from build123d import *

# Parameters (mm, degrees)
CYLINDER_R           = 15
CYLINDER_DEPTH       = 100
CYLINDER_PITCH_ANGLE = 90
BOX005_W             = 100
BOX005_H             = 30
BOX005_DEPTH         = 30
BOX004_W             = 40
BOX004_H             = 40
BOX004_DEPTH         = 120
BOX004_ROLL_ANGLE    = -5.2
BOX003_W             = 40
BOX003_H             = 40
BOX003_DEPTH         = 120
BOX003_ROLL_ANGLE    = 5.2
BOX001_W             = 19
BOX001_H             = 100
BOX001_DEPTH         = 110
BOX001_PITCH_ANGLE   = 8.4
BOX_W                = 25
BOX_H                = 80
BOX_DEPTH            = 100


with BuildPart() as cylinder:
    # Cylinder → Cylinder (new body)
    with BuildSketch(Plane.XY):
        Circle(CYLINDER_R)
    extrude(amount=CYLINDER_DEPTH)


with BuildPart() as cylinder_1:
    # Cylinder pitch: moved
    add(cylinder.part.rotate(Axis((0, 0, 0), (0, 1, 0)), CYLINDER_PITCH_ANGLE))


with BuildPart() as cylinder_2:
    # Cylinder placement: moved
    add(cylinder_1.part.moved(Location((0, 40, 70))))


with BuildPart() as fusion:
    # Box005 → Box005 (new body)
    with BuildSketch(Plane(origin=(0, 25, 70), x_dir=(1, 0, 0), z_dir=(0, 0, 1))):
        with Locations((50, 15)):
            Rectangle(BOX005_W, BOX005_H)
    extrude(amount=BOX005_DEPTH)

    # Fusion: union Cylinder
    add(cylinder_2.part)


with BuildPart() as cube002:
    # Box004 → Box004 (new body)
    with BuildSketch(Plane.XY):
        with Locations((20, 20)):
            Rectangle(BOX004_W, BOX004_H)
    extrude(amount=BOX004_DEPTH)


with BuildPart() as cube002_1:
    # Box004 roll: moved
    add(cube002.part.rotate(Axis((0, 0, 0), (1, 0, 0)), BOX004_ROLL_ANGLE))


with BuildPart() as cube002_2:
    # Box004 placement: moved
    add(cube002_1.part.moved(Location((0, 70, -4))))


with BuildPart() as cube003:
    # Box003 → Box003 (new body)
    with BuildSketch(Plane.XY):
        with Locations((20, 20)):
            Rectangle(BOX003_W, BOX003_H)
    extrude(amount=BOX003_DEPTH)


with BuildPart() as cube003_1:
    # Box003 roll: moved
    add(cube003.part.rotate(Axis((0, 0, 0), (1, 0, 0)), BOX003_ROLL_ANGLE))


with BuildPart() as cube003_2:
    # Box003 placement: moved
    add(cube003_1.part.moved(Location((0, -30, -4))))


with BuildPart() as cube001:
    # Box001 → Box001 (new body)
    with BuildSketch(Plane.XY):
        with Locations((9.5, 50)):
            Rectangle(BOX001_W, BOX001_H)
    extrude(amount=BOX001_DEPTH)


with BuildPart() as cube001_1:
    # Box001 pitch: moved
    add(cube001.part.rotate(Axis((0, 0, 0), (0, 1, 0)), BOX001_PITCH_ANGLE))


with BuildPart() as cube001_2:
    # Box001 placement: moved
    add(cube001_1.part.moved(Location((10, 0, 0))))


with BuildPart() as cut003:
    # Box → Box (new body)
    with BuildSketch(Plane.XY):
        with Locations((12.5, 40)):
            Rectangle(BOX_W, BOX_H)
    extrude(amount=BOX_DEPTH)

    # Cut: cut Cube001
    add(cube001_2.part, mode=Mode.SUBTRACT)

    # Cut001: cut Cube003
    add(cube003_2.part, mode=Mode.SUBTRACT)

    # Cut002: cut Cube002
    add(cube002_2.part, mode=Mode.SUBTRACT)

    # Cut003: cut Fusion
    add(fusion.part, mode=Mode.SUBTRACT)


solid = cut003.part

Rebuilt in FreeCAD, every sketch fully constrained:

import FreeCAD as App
import Part
import Sketcher
from FreeCAD import Vector
Q = App.Units.Quantity


def add_polygon(sketch, points):
    """Adds a closed chain of lines whose ends are joined by coincident constraints."""
    first, n = sketch.GeometryCount, len(points)
    for a, b in zip(points, points[1:] + points[:1]):
        sketch.addGeometry(Part.LineSegment(App.Vector(*a, 0), App.Vector(*b, 0)), False)
    for i in range(n):
        sketch.addConstraint(Sketcher.Constraint("Coincident", first + i, 2, first + (i + 1) % n, 1))

doc = App.newDocument("Part")
body = doc.addObject("PartDesign::Body", "Body")

# Sketch on XY plane
sketch1 = body.newObject("Sketcher::SketchObject", "Sketch")
sketch1.AttachmentSupport = (doc.getObject("XY_Plane"), [""])
sketch1.MapMode = "FlatFace"
sketch1.addGeometry(Part.Circle(Vector(0, 0, 0), Vector(0, 0, 1), 15), False)
sketch1.addConstraint([
    Sketcher.Constraint("Coincident", 0, 3, -1, 1),
    Sketcher.Constraint("Diameter", 0, Q("30 mm")),
])
pad1 = body.newObject("PartDesign::Pad", "Pad")
pad1.Profile = sketch1
pad1.Length = 100
body2 = doc.addObject("PartDesign::Body", "Body001")
doc.recompute()

body.Placement = App.Placement(Vector(0, 0, 0), App.Rotation(Vector(0, 1, 0), 90))
boolean = body2.newObject("PartDesign::Boolean", "Boolean")
boolean.Type = "Fuse"
boolean.addObjects([body])
body3 = doc.addObject("PartDesign::Body", "Body002")
doc.recompute()

body2.Placement = App.Placement(Vector(0, 40, 70), App.Rotation(Vector(0, 0, 1), 0))
boolean2 = body3.newObject("PartDesign::Boolean", "Boolean001")
boolean2.Type = "Fuse"
boolean2.addObjects([body2])
body4 = doc.addObject("PartDesign::Body", "Body003")

# Sketch on XY plane
sketch2 = body4.newObject("Sketcher::SketchObject", "Sketch001")
sketch2.AttachmentSupport = (doc.getObject("XY_Plane003"), [""])
sketch2.MapMode = "FlatFace"
sketch2.AttachmentOffset = App.Placement(Vector(0, 0, 70), App.Rotation())
add_polygon(sketch2, [(0, 55), (0, 25), (100, 25), (100, 55)])  # lines 0-3
sketch2.addConstraint([
    Sketcher.Constraint("Vertical", 0),
    Sketcher.Constraint("Horizontal", 1),
    Sketcher.Constraint("Vertical", 2),
    Sketcher.Constraint("Horizontal", 3),
    Sketcher.Constraint("PointOnObject", 0, 2, -2),
    Sketcher.Constraint("DistanceX", 1, 1, 1, 2, Q("100 mm")),
    Sketcher.Constraint("DistanceY", 0, 2, 0, 1, Q("30 mm")),
    Sketcher.Constraint("DistanceY", -1, 1, 0, 2, Q("25 mm")),
])
pad2 = body4.newObject("PartDesign::Pad", "Pad001")
pad2.Profile = sketch2
pad2.Length = 30
doc.recompute()

boolean3 = body4.newObject("PartDesign::Boolean", "Boolean002")
boolean3.Type = "Fuse"
boolean3.addObjects([body3])
body5 = doc.addObject("PartDesign::Body", "Body004")

# Sketch on XY plane
sketch3 = body5.newObject("Sketcher::SketchObject", "Sketch002")
sketch3.AttachmentSupport = (doc.getObject("XY_Plane004"), [""])
sketch3.MapMode = "FlatFace"
add_polygon(sketch3, [(0, 40), (0, 0), (40, 0), (40, 40)])  # lines 0-3
sketch3.addConstraint([
    Sketcher.Constraint("Vertical", 0),
    Sketcher.Constraint("Horizontal", 1),
    Sketcher.Constraint("Vertical", 2),
    Sketcher.Constraint("Horizontal", 3),
    Sketcher.Constraint("Coincident", 0, 2, -1, 1),
    Sketcher.Constraint("Equal", 3, 0),
    Sketcher.Constraint("DistanceX", 1, 1, 1, 2, Q("40 mm")),
])
pad3 = body5.newObject("PartDesign::Pad", "Pad002")
pad3.Profile = sketch3
pad3.Length = 120
body6 = doc.addObject("PartDesign::Body", "Body005")
doc.recompute()

body5.Placement = App.Placement(Vector(0, 0, 0), App.Rotation(Vector(1, 0, 0), 354.8))
boolean4 = body6.newObject("PartDesign::Boolean", "Boolean003")
boolean4.Type = "Fuse"
boolean4.addObjects([body5])
body7 = doc.addObject("PartDesign::Body", "Body006")
doc.recompute()

body6.Placement = App.Placement(Vector(0, 70, -4), App.Rotation(Vector(0, 0, 1), 0))
boolean5 = body7.newObject("PartDesign::Boolean", "Boolean004")
boolean5.Type = "Fuse"
boolean5.addObjects([body6])
body8 = doc.addObject("PartDesign::Body", "Body007")

# Sketch on XY plane
sketch4 = body8.newObject("Sketcher::SketchObject", "Sketch003")
sketch4.AttachmentSupport = (doc.getObject("XY_Plane007"), [""])
sketch4.MapMode = "FlatFace"
add_polygon(sketch4, [(0, 40), (0, 0), (40, 0), (40, 40)])  # lines 0-3
sketch4.addConstraint([
    Sketcher.Constraint("Vertical", 0),
    Sketcher.Constraint("Horizontal", 1),
    Sketcher.Constraint("Vertical", 2),
    Sketcher.Constraint("Horizontal", 3),
    Sketcher.Constraint("Coincident", 0, 2, -1, 1),
    Sketcher.Constraint("Equal", 3, 0),
    Sketcher.Constraint("DistanceX", 1, 1, 1, 2, Q("40 mm")),
])
pad4 = body8.newObject("PartDesign::Pad", "Pad003")
pad4.Profile = sketch4
pad4.Length = 120
body9 = doc.addObject("PartDesign::Body", "Body008")
doc.recompute()

body8.Placement = App.Placement(Vector(0, 0, 0), App.Rotation(Vector(1, 0, 0), 5.2))
boolean6 = body9.newObject("PartDesign::Boolean", "Boolean005")
boolean6.Type = "Fuse"
boolean6.addObjects([body8])
body10 = doc.addObject("PartDesign::Body", "Body009")
doc.recompute()

body9.Placement = App.Placement(Vector(0, -30, -4), App.Rotation(Vector(0, 0, 1), 0))
boolean7 = body10.newObject("PartDesign::Boolean", "Boolean006")
boolean7.Type = "Fuse"
boolean7.addObjects([body9])
body11 = doc.addObject("PartDesign::Body", "Body010")

# Sketch on XY plane
sketch5 = body11.newObject("Sketcher::SketchObject", "Sketch004")
sketch5.AttachmentSupport = (doc.getObject("XY_Plane010"), [""])
sketch5.MapMode = "FlatFace"
add_polygon(sketch5, [(0, 100), (0, 0), (19, 0), (19, 100)])  # lines 0-3
sketch5.addConstraint([
    Sketcher.Constraint("Vertical", 0),
    Sketcher.Constraint("Horizontal", 1),
    Sketcher.Constraint("Vertical", 2),
    Sketcher.Constraint("Horizontal", 3),
    Sketcher.Constraint("Coincident", 0, 2, -1, 1),
    Sketcher.Constraint("DistanceX", 1, 1, 1, 2, Q("19 mm")),
    Sketcher.Constraint("DistanceY", 0, 2, 0, 1, Q("100 mm")),
])
pad5 = body11.newObject("PartDesign::Pad", "Pad004")
pad5.Profile = sketch5
pad5.Length = 110
body12 = doc.addObject("PartDesign::Body", "Body011")
doc.recompute()

body11.Placement = App.Placement(Vector(0, 0, 0), App.Rotation(Vector(0, 1, 0), 8.4))
boolean8 = body12.newObject("PartDesign::Boolean", "Boolean007")
boolean8.Type = "Fuse"
boolean8.addObjects([body11])
body13 = doc.addObject("PartDesign::Body", "Body012")
doc.recompute()

body12.Placement = App.Placement(Vector(10, 0, 0), App.Rotation(Vector(0, 0, 1), 0))
boolean9 = body13.newObject("PartDesign::Boolean", "Boolean008")
boolean9.Type = "Fuse"
boolean9.addObjects([body12])
body14 = doc.addObject("PartDesign::Body", "Body013")

# Sketch on XY plane
sketch6 = body14.newObject("Sketcher::SketchObject", "Sketch005")
sketch6.AttachmentSupport = (doc.getObject("XY_Plane013"), [""])
sketch6.MapMode = "FlatFace"
add_polygon(sketch6, [(0, 80), (0, 0), (25, 0), (25, 80)])  # lines 0-3
sketch6.addConstraint([
    Sketcher.Constraint("Vertical", 0),
    Sketcher.Constraint("Horizontal", 1),
    Sketcher.Constraint("Vertical", 2),
    Sketcher.Constraint("Horizontal", 3),
    Sketcher.Constraint("Coincident", 0, 2, -1, 1),
    Sketcher.Constraint("DistanceX", 1, 1, 1, 2, Q("25 mm")),
    Sketcher.Constraint("DistanceY", 0, 2, 0, 1, Q("80 mm")),
])
pad6 = body14.newObject("PartDesign::Pad", "Pad005")
pad6.Profile = sketch6
pad6.Length = 100
doc.recompute()

boolean10 = body14.newObject("PartDesign::Boolean", "Boolean009")
boolean10.Type = "Cut"
boolean10.addObjects([body13])
doc.recompute()

boolean11 = body14.newObject("PartDesign::Boolean", "Boolean010")
boolean11.Type = "Cut"
boolean11.addObjects([body10])
doc.recompute()

boolean12 = body14.newObject("PartDesign::Boolean", "Boolean011")
boolean12.Type = "Cut"
boolean12.addObjects([body7])
doc.recompute()

boolean13 = body14.newObject("PartDesign::Boolean", "Boolean012")
boolean13.Type = "Cut"
boolean13.addObjects([body4])

doc.recompute()
